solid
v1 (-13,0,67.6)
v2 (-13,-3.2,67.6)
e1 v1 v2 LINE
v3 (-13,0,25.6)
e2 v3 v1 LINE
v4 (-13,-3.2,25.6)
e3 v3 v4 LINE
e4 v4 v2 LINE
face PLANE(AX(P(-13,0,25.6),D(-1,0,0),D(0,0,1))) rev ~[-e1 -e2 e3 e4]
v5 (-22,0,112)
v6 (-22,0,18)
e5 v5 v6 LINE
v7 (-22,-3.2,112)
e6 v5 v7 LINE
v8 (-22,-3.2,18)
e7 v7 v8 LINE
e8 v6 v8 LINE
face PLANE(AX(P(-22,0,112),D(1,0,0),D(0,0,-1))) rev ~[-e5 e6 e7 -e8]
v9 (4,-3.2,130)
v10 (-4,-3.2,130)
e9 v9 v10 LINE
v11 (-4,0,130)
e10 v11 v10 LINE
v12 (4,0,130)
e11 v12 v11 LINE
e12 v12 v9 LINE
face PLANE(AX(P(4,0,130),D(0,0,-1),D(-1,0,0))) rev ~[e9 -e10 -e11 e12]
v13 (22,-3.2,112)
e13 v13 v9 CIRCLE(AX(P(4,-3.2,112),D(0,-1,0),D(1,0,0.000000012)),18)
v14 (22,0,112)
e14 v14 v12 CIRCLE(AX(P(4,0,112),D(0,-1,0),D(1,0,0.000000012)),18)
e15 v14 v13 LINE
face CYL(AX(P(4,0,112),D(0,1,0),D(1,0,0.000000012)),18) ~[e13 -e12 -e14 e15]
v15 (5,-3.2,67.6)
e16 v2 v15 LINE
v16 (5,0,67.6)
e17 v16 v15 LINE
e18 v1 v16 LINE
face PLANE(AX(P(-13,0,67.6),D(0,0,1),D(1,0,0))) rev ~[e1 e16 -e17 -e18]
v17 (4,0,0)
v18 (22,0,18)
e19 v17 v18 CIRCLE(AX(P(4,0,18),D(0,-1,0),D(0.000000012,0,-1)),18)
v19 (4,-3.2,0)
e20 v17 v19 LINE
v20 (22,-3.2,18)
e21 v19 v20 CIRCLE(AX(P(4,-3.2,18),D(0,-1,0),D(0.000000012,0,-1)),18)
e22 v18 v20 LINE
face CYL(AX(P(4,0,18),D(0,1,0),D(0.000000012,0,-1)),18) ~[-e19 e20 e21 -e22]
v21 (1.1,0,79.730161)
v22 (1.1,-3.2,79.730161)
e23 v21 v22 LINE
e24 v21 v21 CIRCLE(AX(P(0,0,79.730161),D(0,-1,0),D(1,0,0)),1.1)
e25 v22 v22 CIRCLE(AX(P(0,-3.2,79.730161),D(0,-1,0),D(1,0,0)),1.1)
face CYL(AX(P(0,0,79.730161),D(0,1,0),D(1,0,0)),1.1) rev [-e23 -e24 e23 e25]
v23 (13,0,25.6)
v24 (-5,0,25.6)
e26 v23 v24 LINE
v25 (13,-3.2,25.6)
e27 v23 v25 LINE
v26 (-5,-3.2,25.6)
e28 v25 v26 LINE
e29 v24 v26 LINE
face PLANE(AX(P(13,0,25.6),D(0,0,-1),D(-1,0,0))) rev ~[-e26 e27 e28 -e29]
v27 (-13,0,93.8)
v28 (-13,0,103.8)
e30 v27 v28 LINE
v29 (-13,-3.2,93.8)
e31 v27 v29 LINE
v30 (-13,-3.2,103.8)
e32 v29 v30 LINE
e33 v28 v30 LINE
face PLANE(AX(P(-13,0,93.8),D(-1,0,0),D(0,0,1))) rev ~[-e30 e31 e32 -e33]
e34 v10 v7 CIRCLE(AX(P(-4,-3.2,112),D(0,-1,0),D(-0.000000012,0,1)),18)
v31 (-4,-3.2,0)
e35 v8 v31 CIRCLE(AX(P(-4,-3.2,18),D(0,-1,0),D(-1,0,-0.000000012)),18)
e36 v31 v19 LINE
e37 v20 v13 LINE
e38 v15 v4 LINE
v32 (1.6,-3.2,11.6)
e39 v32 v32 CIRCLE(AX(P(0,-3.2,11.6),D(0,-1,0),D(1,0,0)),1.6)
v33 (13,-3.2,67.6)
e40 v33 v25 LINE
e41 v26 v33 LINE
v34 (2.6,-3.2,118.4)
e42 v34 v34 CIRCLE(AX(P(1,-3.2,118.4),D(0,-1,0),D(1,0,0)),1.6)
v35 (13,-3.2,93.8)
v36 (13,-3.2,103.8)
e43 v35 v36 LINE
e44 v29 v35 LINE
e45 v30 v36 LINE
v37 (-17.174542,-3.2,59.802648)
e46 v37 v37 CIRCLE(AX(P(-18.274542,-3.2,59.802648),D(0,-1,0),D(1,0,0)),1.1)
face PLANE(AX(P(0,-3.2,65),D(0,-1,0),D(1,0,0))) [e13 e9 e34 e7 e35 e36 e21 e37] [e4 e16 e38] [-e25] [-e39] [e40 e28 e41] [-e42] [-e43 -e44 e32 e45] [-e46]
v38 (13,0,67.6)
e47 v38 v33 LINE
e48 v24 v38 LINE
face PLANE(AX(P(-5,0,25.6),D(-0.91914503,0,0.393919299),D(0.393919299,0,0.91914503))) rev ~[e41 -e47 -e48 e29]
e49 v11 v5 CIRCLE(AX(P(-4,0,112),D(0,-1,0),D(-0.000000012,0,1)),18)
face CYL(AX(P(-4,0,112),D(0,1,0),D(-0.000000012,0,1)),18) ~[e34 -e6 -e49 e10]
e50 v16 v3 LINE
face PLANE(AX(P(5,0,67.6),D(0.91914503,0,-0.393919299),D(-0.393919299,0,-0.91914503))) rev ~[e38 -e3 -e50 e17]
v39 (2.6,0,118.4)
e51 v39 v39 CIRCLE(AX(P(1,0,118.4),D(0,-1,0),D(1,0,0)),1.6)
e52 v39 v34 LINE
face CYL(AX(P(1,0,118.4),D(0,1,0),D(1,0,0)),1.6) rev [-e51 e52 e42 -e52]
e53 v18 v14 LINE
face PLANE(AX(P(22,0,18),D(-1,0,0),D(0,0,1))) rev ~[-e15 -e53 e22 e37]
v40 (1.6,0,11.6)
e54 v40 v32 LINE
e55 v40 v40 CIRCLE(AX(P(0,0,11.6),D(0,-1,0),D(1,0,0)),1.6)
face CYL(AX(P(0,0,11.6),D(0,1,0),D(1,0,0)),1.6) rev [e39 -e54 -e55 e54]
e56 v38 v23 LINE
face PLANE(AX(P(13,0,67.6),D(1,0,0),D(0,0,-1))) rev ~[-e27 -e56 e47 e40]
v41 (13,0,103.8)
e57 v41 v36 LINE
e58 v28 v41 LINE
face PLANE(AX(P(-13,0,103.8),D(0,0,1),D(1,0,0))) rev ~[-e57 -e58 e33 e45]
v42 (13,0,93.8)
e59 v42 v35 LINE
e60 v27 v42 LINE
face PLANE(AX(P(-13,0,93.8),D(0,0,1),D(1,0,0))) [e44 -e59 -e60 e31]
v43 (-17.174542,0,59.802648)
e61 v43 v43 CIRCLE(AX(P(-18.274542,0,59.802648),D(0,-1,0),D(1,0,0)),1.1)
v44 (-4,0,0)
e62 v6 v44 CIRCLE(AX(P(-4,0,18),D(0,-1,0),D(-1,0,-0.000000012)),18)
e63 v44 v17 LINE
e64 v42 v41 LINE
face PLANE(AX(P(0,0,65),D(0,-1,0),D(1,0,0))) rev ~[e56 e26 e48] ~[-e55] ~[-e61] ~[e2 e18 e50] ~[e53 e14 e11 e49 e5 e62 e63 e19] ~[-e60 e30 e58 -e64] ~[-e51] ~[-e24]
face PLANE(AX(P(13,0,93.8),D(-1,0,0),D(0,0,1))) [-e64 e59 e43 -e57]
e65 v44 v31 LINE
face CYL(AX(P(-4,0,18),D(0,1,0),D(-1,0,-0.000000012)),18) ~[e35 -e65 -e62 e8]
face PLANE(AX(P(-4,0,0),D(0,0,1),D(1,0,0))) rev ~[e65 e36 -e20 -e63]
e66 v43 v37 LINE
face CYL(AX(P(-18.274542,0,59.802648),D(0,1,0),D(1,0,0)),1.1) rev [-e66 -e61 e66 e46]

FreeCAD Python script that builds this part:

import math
import FreeCAD as App
import Part
import Sketcher

V = App.Vector
Q = App.Units.Quantity

doc = App.newDocument("Part")
body = doc.addObject("PartDesign::Body", "Body")

sketch1 = body.newObject("Sketcher::SketchObject", "Sketch")
sketch1.AttachmentSupport = (doc.getObject("XZ_Plane"), [""])
sketch1.MapMode = "FlatFace"
sketch1.addGeometry(Part.ArcOfCircle(Part.Circle(V(-4, 18, 0), V(0, 0, 1), 18), math.radians(-180), math.radians(-90)), False)
sketch1.addGeometry(Part.LineSegment(V(-4, 0, 0), V(4, 0, 0)), False)
sketch1.addGeometry(Part.ArcOfCircle(Part.Circle(V(4, 18, 0), V(0, 0, 1), 18), math.radians(-90), math.radians(0)), False)
sketch1.addGeometry(Part.LineSegment(V(22, 18, 0), V(22, 112, 0)), False)
sketch1.addGeometry(Part.ArcOfCircle(Part.Circle(V(4, 112, 0), V(0, 0, 1), 18), math.radians(0), math.radians(90)), False)
sketch1.addGeometry(Part.LineSegment(V(4, 130, 0), V(-4, 130, 0)), False)
sketch1.addGeometry(Part.ArcOfCircle(Part.Circle(V(-4, 112, 0), V(0, 0, 1), 18), math.radians(90), math.radians(180)), False)
sketch1.addGeometry(Part.LineSegment(V(-22, 112, 0), V(-22, 18, 0)), False)
sketch1.addGeometry(Part.Circle(V(-18.3, 59.8, 0), V(0, 0, 1), 1.1), False)
sketch1.addGeometry(Part.Circle(V(0, 11.6, 0), V(0, 0, 1), 1.6), False)
sketch1.addGeometry(Part.LineSegment(V(13, 25.6, 0), V(-5, 25.6, 0)), False)
sketch1.addGeometry(Part.LineSegment(V(-5, 25.6, 0), V(13, 67.6, 0)), False)
sketch1.addGeometry(Part.LineSegment(V(13, 67.6, 0), V(13, 25.6, 0)), False)
sketch1.addGeometry(Part.LineSegment(V(-13, 25.6, 0), V(-13, 67.6, 0)), False)
sketch1.addGeometry(Part.LineSegment(V(-13, 67.6, 0), V(5, 67.6, 0)), False)
sketch1.addGeometry(Part.LineSegment(V(5, 67.6, 0), V(-13, 25.6, 0)), False)
sketch1.addGeometry(Part.Circle(V(0, 79.7, 0), V(0, 0, 1), 1.1), False)
sketch1.addGeometry(Part.LineSegment(V(13, 93.8, 0), V(-13, 93.8, 0)), False)
sketch1.addGeometry(Part.LineSegment(V(-13, 93.8, 0), V(-13, 103.8, 0)), False)
sketch1.addGeometry(Part.LineSegment(V(-13, 103.8, 0), V(13, 103.8, 0)), False)
sketch1.addGeometry(Part.LineSegment(V(13, 103.8, 0), V(13, 93.8, 0)), False)
sketch1.addGeometry(Part.Circle(V(1, 118.4, 0), V(0, 0, 1), 1.6), False)
sketch1.addConstraint(Sketcher.Constraint("Tangent", 0, 2, 1, 1))
sketch1.addConstraint(Sketcher.Constraint("Tangent", 1, 2, 2, 1))
sketch1.addConstraint(Sketcher.Constraint("Tangent", 2, 2, 3, 1))
sketch1.addConstraint(Sketcher.Constraint("Tangent", 3, 2, 4, 1))
sketch1.addConstraint(Sketcher.Constraint("Tangent", 4, 2, 5, 1))
sketch1.addConstraint(Sketcher.Constraint("Tangent", 5, 2, 6, 1))
sketch1.addConstraint(Sketcher.Constraint("Tangent", 6, 2, 7, 1))
sketch1.addConstraint(Sketcher.Constraint("Tangent", 7, 2, 0, 1))
sketch1.addConstraint(Sketcher.Constraint("Coincident", 10, 2, 11, 1))
sketch1.addConstraint(Sketcher.Constraint("Coincident", 11, 2, 12, 1))
sketch1.addConstraint(Sketcher.Constraint("Coincident", 12, 2, 10, 1))
sketch1.addConstraint(Sketcher.Constraint("Coincident", 13, 2, 14, 1))
sketch1.addConstraint(Sketcher.Constraint("Coincident", 14, 2, 15, 1))
sketch1.addConstraint(Sketcher.Constraint("Coincident", 15, 2, 13, 1))
sketch1.addConstraint(Sketcher.Constraint("Coincident", 17, 2, 18, 1))
sketch1.addConstraint(Sketcher.Constraint("Coincident", 18, 2, 19, 1))
sketch1.addConstraint(Sketcher.Constraint("Coincident", 19, 2, 20, 1))
sketch1.addConstraint(Sketcher.Constraint("Coincident", 20, 2, 17, 1))
sketch1.addConstraint(Sketcher.Constraint("Horizontal", 1))
sketch1.addConstraint(Sketcher.Constraint("Vertical", 3))
sketch1.addConstraint(Sketcher.Constraint("Horizontal", 5))
sketch1.addConstraint(Sketcher.Constraint("Vertical", 7))
sketch1.addConstraint(Sketcher.Constraint("Horizontal", 10))
sketch1.addConstraint(Sketcher.Constraint("Vertical", 12))
sketch1.addConstraint(Sketcher.Constraint("Vertical", 13))
sketch1.addConstraint(Sketcher.Constraint("Horizontal", 14))
sketch1.addConstraint(Sketcher.Constraint("Horizontal", 17))
sketch1.addConstraint(Sketcher.Constraint("Vertical", 18))
sketch1.addConstraint(Sketcher.Constraint("Horizontal", 19))
sketch1.addConstraint(Sketcher.Constraint("Vertical", 20))
sketch1.addConstraint(Sketcher.Constraint("Equal", 0, 2))
sketch1.addConstraint(Sketcher.Constraint("Equal", 2, 4))
sketch1.addConstraint(Sketcher.Constraint("Equal", 4, 6))
sketch1.addConstraint(Sketcher.Constraint("Equal", 8, 16))
sketch1.addConstraint(Sketcher.Constraint("Equal", 9, 21))
sketch1.addConstraint(Sketcher.Constraint("Symmetric", 0, 2, 1, 2, -1, 1))
sketch1.addConstraint(Sketcher.Constraint("Symmetric", 11, 2, 13, 2, -2))
sketch1.addConstraint(Sketcher.Constraint("PointOnObject", 9, 3, -2))
sketch1.addConstraint(Sketcher.Constraint("PointOnObject", 16, 3, -2))
sketch1.addConstraint(Sketcher.Constraint("Parallel", 11, 15))
sketch1.addConstraint(Sketcher.Constraint("Horizontal", 12, 2, 15, 2))
sketch1.addConstraint(Sketcher.Constraint("Vertical", 15, 2, 17, 2))
sketch1.addConstraint(Sketcher.Constraint("Vertical", 12, 2, 19, 2))
sketch1.addConstraint(Sketcher.Constraint("Radius", 0, Q("18 mm")))
sketch1.addConstraint(Sketcher.Constraint("Diameter", 8, Q("2.2 mm")))
sketch1.addConstraint(Sketcher.Constraint("Diameter", 9, Q("3.2 mm")))
sketch1.addConstraint(Sketcher.Constraint("DistanceX", 1, 1, 1, 2, Q("8 mm")))
sketch1.addConstraint(Sketcher.Constraint("DistanceX", 10, 2, 10, 1, Q("18 mm")))
sketch1.addConstraint(Sketcher.Constraint("DistanceX", 17, 2, 17, 1, Q("26 mm")))
sketch1.addConstraint(Sketcher.Constraint("DistanceY", 3, 1, 3, 2, Q("94 mm")))
sketch1.addConstraint(Sketcher.Constraint("DistanceY", 12, 2, 12, 1, Q("42 mm")))
sketch1.addConstraint(Sketcher.Constraint("DistanceY", 18, 1, 18, 2, Q("10 mm")))
sketch1.addConstraint(Sketcher.Constraint("DistanceX", -1, 1, 21, 3, Q("1 mm")))
sketch1.addConstraint(Sketcher.Constraint("DistanceY", 9, 3, 10, 2, Q("14 mm")))
sketch1.addConstraint(Sketcher.Constraint("DistanceY", -1, 1, 9, 3, Q("11.6 mm")))
sketch1.addConstraint(Sketcher.Constraint("DistanceY", -1, 1, 21, 3, Q("118.4 mm")))
sketch1.addConstraint(Sketcher.Constraint("DistanceY", -1, 1, 17, 2, Q("93.8 mm")))
sketch1.addConstraint(Sketcher.Constraint("DistanceY", -1, 1, 16, 3, Q("79.730161 mm")))
sketch1.addConstraint(Sketcher.Constraint("DistanceX", 8, 3, 2, 3, Q("22.274542 mm")))
sketch1.addConstraint(Sketcher.Constraint("DistanceY", 8, 3, 6, 3, Q("52.197352 mm")))
pad1 = body.newObject("PartDesign::Pad", "Pad")
pad1.Profile = sketch1
pad1.Length = 3.2

doc.recompute()
